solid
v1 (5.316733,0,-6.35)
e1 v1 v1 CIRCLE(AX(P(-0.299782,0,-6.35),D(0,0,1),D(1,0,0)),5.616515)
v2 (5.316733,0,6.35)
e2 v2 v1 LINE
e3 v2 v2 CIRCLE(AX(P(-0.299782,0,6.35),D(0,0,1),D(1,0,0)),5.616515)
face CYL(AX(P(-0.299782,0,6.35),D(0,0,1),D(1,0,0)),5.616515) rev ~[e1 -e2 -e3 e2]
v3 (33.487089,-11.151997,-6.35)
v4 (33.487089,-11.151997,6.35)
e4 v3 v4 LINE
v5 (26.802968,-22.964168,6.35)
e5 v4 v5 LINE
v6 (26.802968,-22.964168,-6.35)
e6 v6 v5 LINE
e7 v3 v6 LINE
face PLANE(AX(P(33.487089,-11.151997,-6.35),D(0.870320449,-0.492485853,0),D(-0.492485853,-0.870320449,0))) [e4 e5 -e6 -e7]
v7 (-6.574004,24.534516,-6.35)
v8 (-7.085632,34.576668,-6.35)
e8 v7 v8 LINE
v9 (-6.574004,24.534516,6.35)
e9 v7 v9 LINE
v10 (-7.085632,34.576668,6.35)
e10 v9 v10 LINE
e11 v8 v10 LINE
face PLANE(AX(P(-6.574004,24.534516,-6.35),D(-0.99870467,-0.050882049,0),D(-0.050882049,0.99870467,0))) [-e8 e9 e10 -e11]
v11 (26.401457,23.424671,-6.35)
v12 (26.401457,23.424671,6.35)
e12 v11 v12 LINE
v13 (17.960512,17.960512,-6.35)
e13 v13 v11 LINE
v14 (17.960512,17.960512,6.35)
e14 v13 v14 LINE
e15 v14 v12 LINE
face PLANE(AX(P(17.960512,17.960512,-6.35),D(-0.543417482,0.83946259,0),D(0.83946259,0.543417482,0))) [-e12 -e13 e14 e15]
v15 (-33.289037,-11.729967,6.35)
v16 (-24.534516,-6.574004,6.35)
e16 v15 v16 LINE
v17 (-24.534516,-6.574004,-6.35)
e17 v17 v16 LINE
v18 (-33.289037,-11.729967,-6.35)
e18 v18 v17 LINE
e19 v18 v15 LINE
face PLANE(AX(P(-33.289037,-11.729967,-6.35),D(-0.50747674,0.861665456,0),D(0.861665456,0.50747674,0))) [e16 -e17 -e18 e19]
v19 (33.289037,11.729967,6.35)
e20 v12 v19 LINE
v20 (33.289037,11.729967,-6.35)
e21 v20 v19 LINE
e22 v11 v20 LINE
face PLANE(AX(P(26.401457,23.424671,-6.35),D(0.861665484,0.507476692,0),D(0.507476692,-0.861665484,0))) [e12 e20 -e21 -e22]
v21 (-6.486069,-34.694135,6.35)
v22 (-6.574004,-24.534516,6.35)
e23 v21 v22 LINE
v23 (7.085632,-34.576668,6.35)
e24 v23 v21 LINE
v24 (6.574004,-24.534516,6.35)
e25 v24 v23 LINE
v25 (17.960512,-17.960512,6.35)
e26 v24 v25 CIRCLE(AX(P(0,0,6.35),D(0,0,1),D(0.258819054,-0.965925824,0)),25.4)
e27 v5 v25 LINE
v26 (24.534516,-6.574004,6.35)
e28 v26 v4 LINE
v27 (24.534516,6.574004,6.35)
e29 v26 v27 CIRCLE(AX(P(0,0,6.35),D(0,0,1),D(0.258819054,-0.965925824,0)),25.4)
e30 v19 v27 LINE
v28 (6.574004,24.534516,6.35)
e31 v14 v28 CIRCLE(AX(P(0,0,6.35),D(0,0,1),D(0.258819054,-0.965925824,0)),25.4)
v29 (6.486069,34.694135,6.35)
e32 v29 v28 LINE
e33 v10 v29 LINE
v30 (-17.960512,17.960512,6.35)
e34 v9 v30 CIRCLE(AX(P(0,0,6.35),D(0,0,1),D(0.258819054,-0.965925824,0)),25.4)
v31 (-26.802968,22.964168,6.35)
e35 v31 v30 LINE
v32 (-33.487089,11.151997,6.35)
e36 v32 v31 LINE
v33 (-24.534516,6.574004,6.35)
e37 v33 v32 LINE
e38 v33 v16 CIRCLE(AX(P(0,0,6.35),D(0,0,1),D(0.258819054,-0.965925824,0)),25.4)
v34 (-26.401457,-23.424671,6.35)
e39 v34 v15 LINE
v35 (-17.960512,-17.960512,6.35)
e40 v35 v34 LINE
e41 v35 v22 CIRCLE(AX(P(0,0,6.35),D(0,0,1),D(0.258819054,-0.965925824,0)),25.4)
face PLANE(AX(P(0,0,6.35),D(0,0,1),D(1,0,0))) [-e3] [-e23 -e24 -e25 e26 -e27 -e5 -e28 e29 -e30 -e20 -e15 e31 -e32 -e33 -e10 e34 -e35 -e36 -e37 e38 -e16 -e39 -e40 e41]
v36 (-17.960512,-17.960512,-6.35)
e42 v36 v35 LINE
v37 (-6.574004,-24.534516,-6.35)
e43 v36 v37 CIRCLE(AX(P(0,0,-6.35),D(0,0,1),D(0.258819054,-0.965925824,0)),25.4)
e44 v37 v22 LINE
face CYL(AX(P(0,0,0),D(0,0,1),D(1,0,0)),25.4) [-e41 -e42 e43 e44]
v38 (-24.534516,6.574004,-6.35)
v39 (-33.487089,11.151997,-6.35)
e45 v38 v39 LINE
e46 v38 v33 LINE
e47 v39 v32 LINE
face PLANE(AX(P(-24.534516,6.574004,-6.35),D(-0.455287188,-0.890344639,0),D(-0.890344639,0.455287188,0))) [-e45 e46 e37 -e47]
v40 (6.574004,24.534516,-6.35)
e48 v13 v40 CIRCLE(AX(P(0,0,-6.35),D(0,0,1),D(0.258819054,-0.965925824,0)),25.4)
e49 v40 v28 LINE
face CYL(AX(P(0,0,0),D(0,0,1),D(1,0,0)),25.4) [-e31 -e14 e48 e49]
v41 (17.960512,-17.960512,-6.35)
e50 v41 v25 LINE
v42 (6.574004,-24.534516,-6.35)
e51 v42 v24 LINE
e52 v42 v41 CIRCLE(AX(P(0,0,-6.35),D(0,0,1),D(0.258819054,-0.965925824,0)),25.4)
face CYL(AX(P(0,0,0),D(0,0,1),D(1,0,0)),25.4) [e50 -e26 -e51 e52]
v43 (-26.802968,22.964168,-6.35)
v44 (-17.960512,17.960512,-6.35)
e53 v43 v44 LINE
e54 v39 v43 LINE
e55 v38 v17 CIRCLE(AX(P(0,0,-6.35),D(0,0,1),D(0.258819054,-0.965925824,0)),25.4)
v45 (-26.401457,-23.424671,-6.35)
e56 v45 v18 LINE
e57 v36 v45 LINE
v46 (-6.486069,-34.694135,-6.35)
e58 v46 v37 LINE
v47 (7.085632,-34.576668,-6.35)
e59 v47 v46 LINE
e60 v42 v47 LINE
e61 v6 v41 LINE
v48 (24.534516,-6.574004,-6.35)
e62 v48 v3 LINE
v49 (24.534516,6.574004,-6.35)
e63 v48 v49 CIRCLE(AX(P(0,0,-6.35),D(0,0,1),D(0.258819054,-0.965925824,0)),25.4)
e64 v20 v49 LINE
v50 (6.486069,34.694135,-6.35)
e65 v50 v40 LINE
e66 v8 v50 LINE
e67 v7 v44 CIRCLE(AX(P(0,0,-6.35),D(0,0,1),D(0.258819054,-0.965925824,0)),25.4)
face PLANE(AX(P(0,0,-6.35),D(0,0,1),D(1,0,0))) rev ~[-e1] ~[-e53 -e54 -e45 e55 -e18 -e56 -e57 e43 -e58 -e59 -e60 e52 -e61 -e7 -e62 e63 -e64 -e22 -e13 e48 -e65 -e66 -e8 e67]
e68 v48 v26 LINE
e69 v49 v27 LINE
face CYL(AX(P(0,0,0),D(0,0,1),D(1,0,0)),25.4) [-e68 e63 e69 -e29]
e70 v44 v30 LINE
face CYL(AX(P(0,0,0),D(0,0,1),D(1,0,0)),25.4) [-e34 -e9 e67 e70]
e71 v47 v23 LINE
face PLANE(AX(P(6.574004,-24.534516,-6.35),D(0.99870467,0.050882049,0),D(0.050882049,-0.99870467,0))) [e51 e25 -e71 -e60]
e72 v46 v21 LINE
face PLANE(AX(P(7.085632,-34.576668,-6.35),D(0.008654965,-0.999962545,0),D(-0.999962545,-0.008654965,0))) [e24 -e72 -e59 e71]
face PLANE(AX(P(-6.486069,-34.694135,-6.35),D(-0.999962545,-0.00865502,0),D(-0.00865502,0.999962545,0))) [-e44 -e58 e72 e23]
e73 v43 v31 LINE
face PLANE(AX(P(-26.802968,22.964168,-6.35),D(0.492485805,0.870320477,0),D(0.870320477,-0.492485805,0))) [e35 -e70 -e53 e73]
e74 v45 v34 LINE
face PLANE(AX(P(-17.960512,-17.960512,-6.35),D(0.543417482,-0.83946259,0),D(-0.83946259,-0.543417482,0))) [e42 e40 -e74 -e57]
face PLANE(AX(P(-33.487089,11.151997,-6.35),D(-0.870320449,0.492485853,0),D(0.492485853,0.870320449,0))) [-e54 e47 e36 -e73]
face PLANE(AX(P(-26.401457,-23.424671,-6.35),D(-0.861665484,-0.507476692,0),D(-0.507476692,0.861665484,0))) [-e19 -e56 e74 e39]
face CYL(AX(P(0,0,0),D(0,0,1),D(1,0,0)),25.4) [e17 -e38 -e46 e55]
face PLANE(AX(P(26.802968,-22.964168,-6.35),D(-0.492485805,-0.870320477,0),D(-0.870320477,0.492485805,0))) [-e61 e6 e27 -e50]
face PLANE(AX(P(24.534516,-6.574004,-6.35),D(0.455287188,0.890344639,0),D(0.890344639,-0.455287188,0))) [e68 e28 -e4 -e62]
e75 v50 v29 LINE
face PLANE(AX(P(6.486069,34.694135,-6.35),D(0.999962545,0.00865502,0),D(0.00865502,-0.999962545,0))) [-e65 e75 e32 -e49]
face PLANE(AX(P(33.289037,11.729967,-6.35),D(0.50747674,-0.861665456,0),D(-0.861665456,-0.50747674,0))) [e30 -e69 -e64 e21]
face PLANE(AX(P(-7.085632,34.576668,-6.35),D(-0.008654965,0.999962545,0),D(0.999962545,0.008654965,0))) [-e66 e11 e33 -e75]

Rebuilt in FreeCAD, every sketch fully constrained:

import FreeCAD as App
import Part
import Sketcher
Q = App.Units.Quantity

doc = App.newDocument("Part")
body = doc.addObject("PartDesign::Body", "Body")

# Sketch on XY plane
sketch1 = body.newObject("Sketcher::SketchObject", "Sketch")
sketch1.AttachmentSupport = (doc.getObject("XY_Plane"), [""])
sketch1.MapMode = "FlatFace"
sketch1.addGeometry(Part.Circle(App.Vector(0, 0, 0), App.Vector(0, 0, 1), 25), False)
sketch1.addConstraint(Sketcher.Constraint("Coincident", 0, 3, -1, 1))
sketch1.addConstraint(Sketcher.Constraint("Diameter", 0, Q("2 in")))
pad1 = body.newObject("PartDesign::Pad", "Pad")
pad1.Profile = sketch1
pad1.Length = Q("0.5 in")
pad1.Midplane = True

# Sketch on XY plane
sketch2 = body.newObject("Sketcher::SketchObject", "Sketch001")
sketch2.AttachmentSupport = (doc.getObject("XY_Plane"), [""])
sketch2.MapMode = "FlatFace"
sketch2.AttachmentOffset = App.Placement(App.Vector(0, 0, -0.25 * 25.4), App.Rotation())
sketch2.addGeometry(Part.LineSegment(App.Vector(-6.57, -24.53, 0), App.Vector(0, -24.48, 0)), False)
sketch2.addGeometry(Part.LineSegment(App.Vector(0, -24.48, 0), App.Vector(6.54, -24.42, 0)), False)
sketch2.addGeometry(Part.LineSegment(App.Vector(6.54, -24.42, 0), App.Vector(6.57, -24.53, 0)), False)
sketch2.addGeometry(Part.LineSegment(App.Vector(6.57, -24.53, 0), App.Vector(7.09, -34.58, 0)), False)
sketch2.addGeometry(Part.LineSegment(App.Vector(7.09, -34.58, 0), App.Vector(-6.49, -34.69, 0)), False)
sketch2.addGeometry(Part.LineSegment(App.Vector(-6.49, -34.69, 0), App.Vector(-6.57, -24.53, 0)), False)
sketch2.addConstraint(Sketcher.Constraint("Coincident", 0, 2, 1, 1))
sketch2.addConstraint(Sketcher.Constraint("Coincident", 1, 2, 2, 1))
sketch2.addConstraint(Sketcher.Constraint("Coincident", 2, 2, 3, 1))
sketch2.addConstraint(Sketcher.Constraint("Coincident", 3, 2, 4, 1))
sketch2.addConstraint(Sketcher.Constraint("Coincident", 4, 2, 5, 1))
sketch2.addConstraint(Sketcher.Constraint("Coincident", 5, 2, 0, 1))
sketch2.addConstraint(Sketcher.Constraint("Symmetric", 2, 2, 5, 2, -2))
sketch2.addConstraint(Sketcher.Constraint("PointOnObject", 0, 2, -2))
sketch2.addConstraint(Sketcher.Constraint("Parallel", 0, 1))
sketch2.addConstraint(Sketcher.Constraint("Parallel", 1, 4))
sketch2.addConstraint(Sketcher.Constraint("Perpendicular", 4, 5))
sketch2.addConstraint(Sketcher.Constraint("Distance", 5, Q("0.4 in")))
sketch2.addConstraint(Sketcher.Constraint("DistanceY", 2, 2, 0, 2, 0.0569))
sketch2.addConstraint(Sketcher.Constraint("DistanceX", 4, 2, 3, 2, 13.571701))
sketch2.addConstraint(Sketcher.Constraint("Distance", 0, 6.57425))
sketch2.addConstraint(Sketcher.Constraint("DistanceX", -1, 1, 1, 2, 6.543582))
sketch2.addConstraint(Sketcher.Constraint("DistanceY", 1, 2, -1, 1, 24.420979))
pad2 = body.newObject("PartDesign::Pad", "Pad001")
pad2.Profile = sketch2
pad2.Length = Q("0.5 in")
body2 = doc.addObject("PartDesign::Body", "Body001")
doc.recompute()

body2.BaseFeature = body
doc.recompute()

body3 = doc.addObject("PartDesign::Body", "Body002")
body3.BaseFeature = body
body3.Placement = App.Placement(App.Vector(0, 0, 0), App.Rotation(App.Vector(0, 0, 1), 60))
boolean = body2.newObject("PartDesign::Boolean", "Boolean")
boolean.Type = "Fuse"
boolean.addObjects([body3])
doc.recompute()

body4 = doc.addObject("PartDesign::Body", "Body003")
body4.BaseFeature = body
body4.Placement = App.Placement(App.Vector(0, 0, 0), App.Rotation(App.Vector(0, 0, 1), 120))
boolean2 = body2.newObject("PartDesign::Boolean", "Boolean001")
boolean2.Type = "Fuse"
boolean2.addObjects([body4])
doc.recompute()

body5 = doc.addObject("PartDesign::Body", "Body004")
body5.BaseFeature = body
body5.Placement = App.Placement(App.Vector(0, 0, 0), App.Rotation(App.Vector(0, 0, 1), 180))
boolean3 = body2.newObject("PartDesign::Boolean", "Boolean002")
boolean3.Type = "Fuse"
boolean3.addObjects([body5])
doc.recompute()

body6 = doc.addObject("PartDesign::Body", "Body005")
body6.BaseFeature = body
body6.Placement = App.Placement(App.Vector(0, 0, 0), App.Rotation(App.Vector(0, 0, 1), 240))
boolean4 = body2.newObject("PartDesign::Boolean", "Boolean003")
boolean4.Type = "Fuse"
boolean4.addObjects([body6])
doc.recompute()

body.Placement = App.Placement(App.Vector(0, 0, 0), App.Rotation(App.Vector(0, 0, 1), 300))
boolean5 = body2.newObject("PartDesign::Boolean", "Boolean004")
boolean5.Type = "Fuse"
boolean5.addObjects([body])

# Sketch on XY plane
sketch3 = body2.newObject("Sketcher::SketchObject", "Sketch002")
sketch3.AttachmentSupport = (doc.getObject("XY_Plane001"), [""])
sketch3.MapMode = "FlatFace"
sketch3.AttachmentOffset = App.Placement(App.Vector(0, 0, 0.25 * 25.4), App.Rotation())
sketch3.addGeometry(Part.Circle(App.Vector(0, 0, 0), App.Vector(0, 0, 1), 6), False)
sketch3.addConstraint(Sketcher.Constraint("PointOnObject", 0, 3, -1))
sketch3.addConstraint(Sketcher.Constraint("Diameter", 0, 11.23303))
sketch3.addConstraint(Sketcher.Constraint("DistanceX", 0, 3, -1, 1, 0.299782))
pocket1 = body2.newObject("PartDesign::Pocket", "Pocket")
pocket1.Profile = sketch3
pocket1.Length = Q("0.5 in")

doc.recompute()
